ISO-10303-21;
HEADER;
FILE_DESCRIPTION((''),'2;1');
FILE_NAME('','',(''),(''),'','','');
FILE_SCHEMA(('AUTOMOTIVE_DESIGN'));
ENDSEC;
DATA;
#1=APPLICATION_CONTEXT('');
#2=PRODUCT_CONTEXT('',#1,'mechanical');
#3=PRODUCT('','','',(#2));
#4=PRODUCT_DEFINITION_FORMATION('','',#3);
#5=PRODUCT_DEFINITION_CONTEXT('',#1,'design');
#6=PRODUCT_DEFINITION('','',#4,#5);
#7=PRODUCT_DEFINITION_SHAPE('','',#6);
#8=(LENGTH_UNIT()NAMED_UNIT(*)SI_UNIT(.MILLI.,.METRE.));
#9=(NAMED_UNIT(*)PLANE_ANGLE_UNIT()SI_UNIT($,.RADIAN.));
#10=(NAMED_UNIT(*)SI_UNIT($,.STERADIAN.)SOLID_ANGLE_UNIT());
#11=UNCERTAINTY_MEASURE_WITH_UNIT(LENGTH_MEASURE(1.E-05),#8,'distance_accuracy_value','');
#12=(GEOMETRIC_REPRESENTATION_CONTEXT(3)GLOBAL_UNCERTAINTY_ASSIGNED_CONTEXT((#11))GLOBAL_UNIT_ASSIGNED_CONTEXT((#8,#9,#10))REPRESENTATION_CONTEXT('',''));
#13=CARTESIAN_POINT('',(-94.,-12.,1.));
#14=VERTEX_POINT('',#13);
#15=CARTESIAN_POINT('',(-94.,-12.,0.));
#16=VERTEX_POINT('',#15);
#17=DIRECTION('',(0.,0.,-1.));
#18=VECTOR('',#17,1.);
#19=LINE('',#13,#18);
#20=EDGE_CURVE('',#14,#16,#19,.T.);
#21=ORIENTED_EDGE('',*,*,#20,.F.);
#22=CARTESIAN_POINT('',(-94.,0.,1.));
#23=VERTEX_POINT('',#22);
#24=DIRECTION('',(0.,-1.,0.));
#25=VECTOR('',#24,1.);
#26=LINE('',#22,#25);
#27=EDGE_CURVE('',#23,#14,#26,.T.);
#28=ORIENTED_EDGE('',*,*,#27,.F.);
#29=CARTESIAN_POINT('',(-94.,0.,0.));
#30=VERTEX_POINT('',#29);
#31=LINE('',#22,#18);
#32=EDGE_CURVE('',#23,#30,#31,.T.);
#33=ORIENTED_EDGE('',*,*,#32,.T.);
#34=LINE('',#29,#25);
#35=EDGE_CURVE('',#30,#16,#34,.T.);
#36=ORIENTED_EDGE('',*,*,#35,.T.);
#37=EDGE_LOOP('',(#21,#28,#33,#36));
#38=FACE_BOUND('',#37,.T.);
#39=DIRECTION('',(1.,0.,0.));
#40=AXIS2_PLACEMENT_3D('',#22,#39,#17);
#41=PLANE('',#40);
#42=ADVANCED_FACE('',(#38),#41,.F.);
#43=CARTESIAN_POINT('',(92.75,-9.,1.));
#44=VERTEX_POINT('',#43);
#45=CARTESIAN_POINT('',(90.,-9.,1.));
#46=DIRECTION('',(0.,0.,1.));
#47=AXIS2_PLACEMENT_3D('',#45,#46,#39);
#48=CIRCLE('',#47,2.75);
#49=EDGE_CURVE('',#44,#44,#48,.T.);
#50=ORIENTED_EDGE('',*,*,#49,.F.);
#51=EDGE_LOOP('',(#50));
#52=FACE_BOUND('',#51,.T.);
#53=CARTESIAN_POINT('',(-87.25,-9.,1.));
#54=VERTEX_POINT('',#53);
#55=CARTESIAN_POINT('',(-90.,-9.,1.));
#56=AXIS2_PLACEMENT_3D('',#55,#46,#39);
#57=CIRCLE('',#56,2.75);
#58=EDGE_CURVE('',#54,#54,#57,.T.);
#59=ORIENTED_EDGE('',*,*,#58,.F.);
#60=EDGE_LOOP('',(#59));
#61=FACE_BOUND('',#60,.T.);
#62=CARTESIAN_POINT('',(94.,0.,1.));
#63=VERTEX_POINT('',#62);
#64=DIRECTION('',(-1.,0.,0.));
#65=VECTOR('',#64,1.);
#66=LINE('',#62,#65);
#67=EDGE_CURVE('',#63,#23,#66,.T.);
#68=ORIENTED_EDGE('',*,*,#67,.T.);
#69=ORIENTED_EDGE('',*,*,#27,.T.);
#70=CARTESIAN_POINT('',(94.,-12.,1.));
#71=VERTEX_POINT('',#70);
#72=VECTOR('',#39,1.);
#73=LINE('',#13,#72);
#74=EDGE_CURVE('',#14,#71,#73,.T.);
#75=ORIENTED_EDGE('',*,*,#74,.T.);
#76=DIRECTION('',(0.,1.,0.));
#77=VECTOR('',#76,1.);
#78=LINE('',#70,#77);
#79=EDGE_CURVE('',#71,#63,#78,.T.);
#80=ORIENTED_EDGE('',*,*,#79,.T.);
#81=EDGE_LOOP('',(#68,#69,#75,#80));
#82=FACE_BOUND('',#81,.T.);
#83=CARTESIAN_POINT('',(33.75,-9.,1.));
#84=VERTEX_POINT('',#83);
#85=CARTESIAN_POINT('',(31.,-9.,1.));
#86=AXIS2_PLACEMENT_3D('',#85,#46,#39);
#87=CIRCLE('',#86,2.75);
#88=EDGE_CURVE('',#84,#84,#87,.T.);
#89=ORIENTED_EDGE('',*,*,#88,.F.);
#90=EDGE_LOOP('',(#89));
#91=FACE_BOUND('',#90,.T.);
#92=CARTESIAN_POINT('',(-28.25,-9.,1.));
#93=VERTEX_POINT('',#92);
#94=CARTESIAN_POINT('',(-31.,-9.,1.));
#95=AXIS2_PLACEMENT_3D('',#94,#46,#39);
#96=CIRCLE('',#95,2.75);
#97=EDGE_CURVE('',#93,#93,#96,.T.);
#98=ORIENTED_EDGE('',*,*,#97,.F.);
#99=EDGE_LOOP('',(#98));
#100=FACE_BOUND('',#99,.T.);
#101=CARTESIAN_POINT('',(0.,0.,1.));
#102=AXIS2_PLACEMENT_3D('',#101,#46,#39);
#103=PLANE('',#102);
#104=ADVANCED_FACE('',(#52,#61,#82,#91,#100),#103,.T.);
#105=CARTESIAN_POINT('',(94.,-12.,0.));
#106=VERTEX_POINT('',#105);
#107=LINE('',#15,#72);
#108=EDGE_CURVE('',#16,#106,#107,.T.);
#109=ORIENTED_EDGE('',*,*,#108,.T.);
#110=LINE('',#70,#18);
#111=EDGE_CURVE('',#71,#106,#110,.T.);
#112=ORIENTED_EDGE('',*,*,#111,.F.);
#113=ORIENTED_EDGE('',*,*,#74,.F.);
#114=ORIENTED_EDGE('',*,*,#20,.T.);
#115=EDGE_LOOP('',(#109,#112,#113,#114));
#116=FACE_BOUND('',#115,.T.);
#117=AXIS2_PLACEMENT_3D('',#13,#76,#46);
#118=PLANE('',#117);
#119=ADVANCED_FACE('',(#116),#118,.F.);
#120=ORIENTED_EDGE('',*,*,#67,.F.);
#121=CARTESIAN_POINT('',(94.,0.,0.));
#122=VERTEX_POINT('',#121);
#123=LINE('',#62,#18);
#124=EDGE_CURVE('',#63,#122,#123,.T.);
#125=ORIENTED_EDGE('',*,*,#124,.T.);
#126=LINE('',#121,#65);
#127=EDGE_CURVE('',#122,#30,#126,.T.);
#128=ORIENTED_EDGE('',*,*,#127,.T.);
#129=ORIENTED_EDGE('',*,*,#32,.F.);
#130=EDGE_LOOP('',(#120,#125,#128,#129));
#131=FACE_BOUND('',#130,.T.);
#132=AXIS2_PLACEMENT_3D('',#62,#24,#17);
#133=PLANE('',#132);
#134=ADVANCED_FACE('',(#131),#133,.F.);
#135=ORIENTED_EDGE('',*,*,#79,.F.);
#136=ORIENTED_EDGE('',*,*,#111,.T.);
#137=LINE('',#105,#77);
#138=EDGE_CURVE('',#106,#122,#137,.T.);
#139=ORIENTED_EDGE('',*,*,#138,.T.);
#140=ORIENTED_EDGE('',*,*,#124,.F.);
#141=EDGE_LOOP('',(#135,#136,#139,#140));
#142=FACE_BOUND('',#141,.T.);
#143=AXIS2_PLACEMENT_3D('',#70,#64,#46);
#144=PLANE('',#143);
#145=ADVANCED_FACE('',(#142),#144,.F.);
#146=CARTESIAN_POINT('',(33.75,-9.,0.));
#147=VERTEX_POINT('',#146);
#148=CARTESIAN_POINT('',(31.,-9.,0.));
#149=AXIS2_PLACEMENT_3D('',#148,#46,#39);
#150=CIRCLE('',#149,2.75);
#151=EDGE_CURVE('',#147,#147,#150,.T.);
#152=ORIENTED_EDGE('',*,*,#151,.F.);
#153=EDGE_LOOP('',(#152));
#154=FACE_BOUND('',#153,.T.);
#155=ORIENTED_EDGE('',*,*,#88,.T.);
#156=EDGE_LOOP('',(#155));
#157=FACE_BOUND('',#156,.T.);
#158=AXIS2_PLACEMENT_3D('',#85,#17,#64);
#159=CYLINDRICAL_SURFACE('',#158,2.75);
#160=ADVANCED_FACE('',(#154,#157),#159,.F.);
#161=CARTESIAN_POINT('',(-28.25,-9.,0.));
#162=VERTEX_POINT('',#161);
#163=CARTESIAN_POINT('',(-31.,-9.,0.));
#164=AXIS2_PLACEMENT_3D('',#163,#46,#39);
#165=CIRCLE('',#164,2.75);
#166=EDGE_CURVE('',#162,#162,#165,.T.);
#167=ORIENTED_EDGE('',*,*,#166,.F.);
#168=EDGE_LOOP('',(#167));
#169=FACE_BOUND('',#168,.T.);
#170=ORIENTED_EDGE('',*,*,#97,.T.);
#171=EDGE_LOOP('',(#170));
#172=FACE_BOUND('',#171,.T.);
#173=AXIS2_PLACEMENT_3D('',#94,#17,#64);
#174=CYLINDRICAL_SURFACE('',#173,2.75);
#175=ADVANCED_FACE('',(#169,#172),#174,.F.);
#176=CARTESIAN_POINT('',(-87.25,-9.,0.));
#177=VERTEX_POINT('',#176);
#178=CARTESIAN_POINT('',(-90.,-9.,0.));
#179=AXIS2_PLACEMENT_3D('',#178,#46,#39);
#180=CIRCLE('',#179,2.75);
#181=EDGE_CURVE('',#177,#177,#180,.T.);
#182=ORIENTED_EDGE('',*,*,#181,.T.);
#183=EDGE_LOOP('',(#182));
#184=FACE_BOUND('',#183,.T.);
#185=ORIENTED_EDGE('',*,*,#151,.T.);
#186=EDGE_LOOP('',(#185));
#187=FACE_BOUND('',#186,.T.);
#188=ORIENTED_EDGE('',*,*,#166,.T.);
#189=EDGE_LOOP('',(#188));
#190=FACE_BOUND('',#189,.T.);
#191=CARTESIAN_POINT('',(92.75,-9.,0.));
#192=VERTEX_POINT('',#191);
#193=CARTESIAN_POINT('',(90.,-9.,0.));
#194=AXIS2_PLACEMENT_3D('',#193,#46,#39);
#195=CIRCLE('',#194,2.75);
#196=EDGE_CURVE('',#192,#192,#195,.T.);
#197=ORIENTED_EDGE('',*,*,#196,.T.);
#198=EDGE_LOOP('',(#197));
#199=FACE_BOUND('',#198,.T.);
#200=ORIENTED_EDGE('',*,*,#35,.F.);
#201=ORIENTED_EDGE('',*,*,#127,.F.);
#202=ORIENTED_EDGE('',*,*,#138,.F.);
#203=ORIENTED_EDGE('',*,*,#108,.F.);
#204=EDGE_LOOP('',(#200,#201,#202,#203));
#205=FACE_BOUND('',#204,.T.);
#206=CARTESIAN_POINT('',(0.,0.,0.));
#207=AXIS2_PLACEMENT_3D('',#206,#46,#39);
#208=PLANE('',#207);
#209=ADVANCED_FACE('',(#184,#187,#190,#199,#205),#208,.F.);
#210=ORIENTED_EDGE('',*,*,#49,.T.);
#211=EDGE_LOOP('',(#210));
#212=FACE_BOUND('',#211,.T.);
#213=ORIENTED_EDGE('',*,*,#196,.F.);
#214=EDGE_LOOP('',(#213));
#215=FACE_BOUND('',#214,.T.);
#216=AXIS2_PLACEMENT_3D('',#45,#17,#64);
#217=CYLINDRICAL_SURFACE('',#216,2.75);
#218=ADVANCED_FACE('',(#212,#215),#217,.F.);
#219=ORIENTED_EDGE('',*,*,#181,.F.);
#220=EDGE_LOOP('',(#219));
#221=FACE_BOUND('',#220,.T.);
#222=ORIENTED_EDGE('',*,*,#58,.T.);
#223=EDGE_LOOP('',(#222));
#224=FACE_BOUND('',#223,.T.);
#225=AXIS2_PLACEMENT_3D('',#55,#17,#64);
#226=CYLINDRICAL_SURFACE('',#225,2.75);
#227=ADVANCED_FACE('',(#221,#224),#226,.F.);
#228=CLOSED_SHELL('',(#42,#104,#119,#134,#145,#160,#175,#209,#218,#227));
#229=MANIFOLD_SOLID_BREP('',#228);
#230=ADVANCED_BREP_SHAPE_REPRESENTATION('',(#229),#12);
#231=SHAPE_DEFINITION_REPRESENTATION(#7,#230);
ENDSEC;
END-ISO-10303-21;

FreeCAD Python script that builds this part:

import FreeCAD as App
import Part
import Sketcher
from FreeCAD import Vector
Q = App.Units.Quantity

doc = App.newDocument("Part")
body = doc.addObject("PartDesign::Body", "Body")

# Sketch on XY plane
sketch1 = body.newObject("Sketcher::SketchObject", "Sketch")
sketch1.AttachmentSupport = (doc.getObject("XY_Plane"), [""])
sketch1.MapMode = "FlatFace"
sketch1.addGeometry([
    Part.LineSegment(Vector(-94, 0, 0), Vector(-94, -12, 0)),  # 0
    Part.LineSegment(Vector(-94, -12, 0), Vector(94, -12, 0)),  # 1
    Part.LineSegment(Vector(94, -12, 0), Vector(94, 0, 0)),  # 2
    Part.LineSegment(Vector(94, 0, 0), Vector(-94, 0, 0)),  # 3
    Part.Circle(Vector(-90, -9, 0), Vector(0, 0, 1), 2.8),  # 4
    Part.Circle(Vector(-31, -9, 0), Vector(0, 0, 1), 2.8),  # 5
    Part.Circle(Vector(31, -9, 0), Vector(0, 0, 1), 2.8),  # 6
    Part.Circle(Vector(90, -9, 0), Vector(0, 0, 1), 2.8),  # 7
], False)
sketch1.addConstraint([
    Sketcher.Constraint("Coincident", 0, 2, 1, 1),
    Sketcher.Constraint("Coincident", 1, 2, 2, 1),
    Sketcher.Constraint("Coincident", 2, 2, 3, 1),
    Sketcher.Constraint("Coincident", 3, 2, 0, 1),
    Sketcher.Constraint("Vertical", 0),
    Sketcher.Constraint("Horizontal", 1),
    Sketcher.Constraint("Vertical", 2),
    Sketcher.Constraint("Horizontal", 3),
    Sketcher.Constraint("Equal", 4, 5),
    Sketcher.Constraint("Equal", 5, 6),
    Sketcher.Constraint("Equal", 6, 7),
    Sketcher.Constraint("Symmetric", 2, 2, 3, 2, -1, 1),
    Sketcher.Constraint("Symmetric", 5, 3, 6, 3, -2),
    Sketcher.Constraint("Symmetric", 4, 3, 7, 3, -2),
    Sketcher.Constraint("Horizontal", 4, 3, 5, 3),
    Sketcher.Constraint("Diameter", 4, Q("5.5 mm")),
    Sketcher.Constraint("DistanceX", 1, 1, 1, 2, Q("188 mm")),
    Sketcher.Constraint("DistanceY", 0, 2, 0, 1, Q("12 mm")),
    Sketcher.Constraint("DistanceX", 4, 3, -1, 1, Q("90 mm")),
    Sketcher.Constraint("DistanceY", 4, 3, -1, 1, Q("9 mm")),
    Sketcher.Constraint("DistanceX", 5, 3, -1, 1, Q("31 mm")),
])
pad1 = body.newObject("PartDesign::Pad", "Pad")
pad1.Profile = sketch1
pad1.Length = 1

doc.recompute()
